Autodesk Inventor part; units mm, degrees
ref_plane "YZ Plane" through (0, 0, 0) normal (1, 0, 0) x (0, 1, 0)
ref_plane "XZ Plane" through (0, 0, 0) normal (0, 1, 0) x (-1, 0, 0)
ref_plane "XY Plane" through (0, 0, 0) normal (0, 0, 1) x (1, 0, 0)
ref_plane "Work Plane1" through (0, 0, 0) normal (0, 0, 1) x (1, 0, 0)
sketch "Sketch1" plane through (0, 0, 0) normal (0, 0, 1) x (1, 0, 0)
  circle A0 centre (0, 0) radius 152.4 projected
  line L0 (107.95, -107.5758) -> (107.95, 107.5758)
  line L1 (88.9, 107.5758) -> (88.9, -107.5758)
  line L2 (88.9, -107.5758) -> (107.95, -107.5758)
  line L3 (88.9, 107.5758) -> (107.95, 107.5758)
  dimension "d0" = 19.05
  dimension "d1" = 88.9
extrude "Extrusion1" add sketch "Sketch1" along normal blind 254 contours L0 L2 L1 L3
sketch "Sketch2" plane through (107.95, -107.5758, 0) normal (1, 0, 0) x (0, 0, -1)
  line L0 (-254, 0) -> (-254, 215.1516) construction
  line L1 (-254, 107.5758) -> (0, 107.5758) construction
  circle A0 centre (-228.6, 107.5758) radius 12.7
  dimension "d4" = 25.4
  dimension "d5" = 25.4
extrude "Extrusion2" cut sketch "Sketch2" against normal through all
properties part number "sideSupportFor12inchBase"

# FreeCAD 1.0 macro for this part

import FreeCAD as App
import Part
import Sketcher
from FreeCAD import Vector
Q = App.Units.Quantity


def add_polygon(sketch, points):
    """Adds a closed chain of lines whose ends are joined by coincident constraints."""
    first, n = sketch.GeometryCount, len(points)
    for a, b in zip(points, points[1:] + points[:1]):
        sketch.addGeometry(Part.LineSegment(App.Vector(*a, 0), App.Vector(*b, 0)), False)
    for i in range(n):
        sketch.addConstraint(Sketcher.Constraint("Coincident", first + i, 2, first + (i + 1) % n, 1))

doc = App.newDocument("Part")
params = doc.addObject("Spreadsheet::Sheet", "Params")
for row, (alias, value) in enumerate([
    ("sketch1_width", "0.75 in"),
    ("pad1_length", "10 in"),
    ("sketch2_diameter", "1 in"),
], start=1):
    params.set(f"A{row}", alias)
    params.set(f"B{row}", "=" + value)
    params.setAlias(f"B{row}", alias)

body = doc.addObject("PartDesign::Body", "Body")

sketch1 = body.newObject("Sketcher::SketchObject", "Sketch")
sketch1.AttachmentSupport = (doc.getObject("XY_Plane"), [""])
sketch1.MapMode = "FlatFace"
add_polygon(sketch1, [(107.95, -107.5758), (107.95, 107.5758), (88.9, 107.5758), (88.9, -107.5758)])
sketch1.addConstraint(Sketcher.Constraint("Vertical", 0))
sketch1.addConstraint(Sketcher.Constraint("Horizontal", 1))
sketch1.addConstraint(Sketcher.Constraint("Vertical", 2))
sketch1.addConstraint(Sketcher.Constraint("Horizontal", 3))
sketch1.addConstraint(Sketcher.Constraint("DistanceX", 1, 2, 1, 1, Q("0.75 in")))
sketch1.addConstraint(Sketcher.Constraint("DistanceX", -1, 1, 1, 2, Q("3.5 in")))
sketch1.addConstraint(Sketcher.Constraint("DistanceY", 0, 1, 0, 2, Q("215.1516 mm")))
sketch1.addConstraint(Sketcher.Constraint("DistanceY", -1, 1, 0, 2, Q("107.5758 mm")))
sketch1.setExpression("Constraints[8]", "Params.sketch1_width")
pad1 = body.newObject("PartDesign::Pad", "Pad")
pad1.Profile = sketch1
pad1.setExpression("Length", "Params.pad1_length")

sketch2 = body.newObject("Sketcher::SketchObject", "Sketch001")
sketch2.AttachmentSupport = (doc.getObject("YZ_Plane"), [""])
sketch2.MapMode = "FlatFace"
sketch2.AttachmentOffset = App.Placement(Vector(0, 0, 4.25 * 25.4), App.Rotation())
sketch2.addGeometry(Part.Circle(Vector(0, 228.6, 0), Vector(0, 0, 1), 12.7), False)
sketch2.addConstraint(Sketcher.Constraint("PointOnObject", 0, 3, -2))
sketch2.addConstraint(Sketcher.Constraint("Diameter", 0, Q("1 in")))
sketch2.addConstraint(Sketcher.Constraint("DistanceY", -1, 1, 0, 3, Q("9 in")))
sketch2.setExpression("Constraints[1]", "Params.sketch2_diameter")
pocket1 = body.newObject("PartDesign::Pocket", "Pocket")
pocket1.Profile = sketch2
pocket1.Type = "ThroughAll"

doc.recompute()
